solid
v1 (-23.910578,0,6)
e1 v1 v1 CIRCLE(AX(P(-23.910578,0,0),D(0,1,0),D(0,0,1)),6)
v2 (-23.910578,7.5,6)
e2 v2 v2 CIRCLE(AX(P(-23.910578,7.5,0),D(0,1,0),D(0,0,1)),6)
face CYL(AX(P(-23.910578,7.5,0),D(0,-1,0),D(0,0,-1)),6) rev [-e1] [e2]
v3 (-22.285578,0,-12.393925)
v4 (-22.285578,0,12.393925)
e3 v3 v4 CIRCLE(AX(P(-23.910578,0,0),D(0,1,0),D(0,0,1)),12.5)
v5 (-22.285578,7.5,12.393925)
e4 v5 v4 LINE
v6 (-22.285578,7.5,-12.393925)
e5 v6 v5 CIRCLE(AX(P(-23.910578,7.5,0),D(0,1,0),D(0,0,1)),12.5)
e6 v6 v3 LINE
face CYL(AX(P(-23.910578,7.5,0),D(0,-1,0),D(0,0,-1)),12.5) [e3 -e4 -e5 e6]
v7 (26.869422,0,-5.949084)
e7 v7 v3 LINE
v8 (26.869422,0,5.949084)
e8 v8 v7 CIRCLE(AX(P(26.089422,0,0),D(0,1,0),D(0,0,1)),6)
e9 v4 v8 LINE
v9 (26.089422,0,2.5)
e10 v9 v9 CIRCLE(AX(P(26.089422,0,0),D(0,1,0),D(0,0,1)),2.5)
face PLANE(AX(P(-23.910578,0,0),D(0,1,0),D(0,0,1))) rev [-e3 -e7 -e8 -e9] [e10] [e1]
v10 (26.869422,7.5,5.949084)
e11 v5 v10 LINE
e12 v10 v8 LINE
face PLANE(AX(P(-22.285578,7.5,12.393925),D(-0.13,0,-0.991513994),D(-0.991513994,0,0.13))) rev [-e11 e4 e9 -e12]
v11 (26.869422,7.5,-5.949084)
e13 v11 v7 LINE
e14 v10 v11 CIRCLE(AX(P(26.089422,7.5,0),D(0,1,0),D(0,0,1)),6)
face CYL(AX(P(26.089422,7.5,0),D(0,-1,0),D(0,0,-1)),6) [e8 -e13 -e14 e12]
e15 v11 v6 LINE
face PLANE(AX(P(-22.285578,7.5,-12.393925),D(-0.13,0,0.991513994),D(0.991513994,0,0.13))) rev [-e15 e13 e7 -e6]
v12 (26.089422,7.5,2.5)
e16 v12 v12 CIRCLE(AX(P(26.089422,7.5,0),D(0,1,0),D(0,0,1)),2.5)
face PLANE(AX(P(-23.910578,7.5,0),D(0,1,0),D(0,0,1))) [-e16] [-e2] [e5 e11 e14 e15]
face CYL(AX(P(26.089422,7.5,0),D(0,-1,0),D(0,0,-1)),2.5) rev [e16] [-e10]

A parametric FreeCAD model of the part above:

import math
import FreeCAD as App
import Part
import Sketcher
from FreeCAD import Vector
Q = App.Units.Quantity

doc = App.newDocument("Part")
body = doc.addObject("PartDesign::Body", "Body")

# Sketch on XZ plane
sketch1 = body.newObject("Sketcher::SketchObject", "Sketch")
sketch1.AttachmentSupport = (doc.getObject("XZ_Plane"), [""])
sketch1.MapMode = "FlatFace"
sketch1.addGeometry(Part.LineSegment(Vector(26.9, -5.9, 0), Vector(-22.3, -12.4, 0)), False)
sketch1.addGeometry(Part.ArcOfCircle(Part.Circle(Vector(-23.9, 0, 0), Vector(0, 0, 1), 12.5), math.radians(83), math.radians(277)), False)
sketch1.addGeometry(Part.LineSegment(Vector(-22.3, 12.4, 0), Vector(26.9, 5.9, 0)), False)
sketch1.addGeometry(Part.ArcOfCircle(Part.Circle(Vector(26.1, 0, 0), Vector(0, 0, 1), 6), math.radians(-83), math.radians(83)), False)
sketch1.addGeometry(Part.Circle(Vector(26.1, 0, 0), Vector(0, 0, 1), 2.5), False)
sketch1.addGeometry(Part.Circle(Vector(-23.9, 0, 0), Vector(0, 0, 1), 6), False)
sketch1.addConstraint(Sketcher.Constraint("Tangent", 0, 2, 1, 2))
sketch1.addConstraint(Sketcher.Constraint("Tangent", 1, 1, 2, 1))
sketch1.addConstraint(Sketcher.Constraint("Tangent", 2, 2, 3, 2))
sketch1.addConstraint(Sketcher.Constraint("Tangent", 3, 1, 0, 1))
sketch1.addConstraint(Sketcher.Constraint("Coincident", 4, 3, 3, 3))
sketch1.addConstraint(Sketcher.Constraint("Coincident", 5, 3, 1, 3))
sketch1.addConstraint(Sketcher.Constraint("Equal", 3, 5))
sketch1.addConstraint(Sketcher.Constraint("Symmetric", 0, 2, 1, 1, -1))
sketch1.addConstraint(Sketcher.Constraint("Diameter", 4, Q("5 mm")))
sketch1.addConstraint(Sketcher.Constraint("Diameter", 5, Q("12 mm")))
sketch1.addConstraint(Sketcher.Constraint("Radius", 1, Q("12.5 mm")))
sketch1.addConstraint(Sketcher.Constraint("DistanceX", 1, 3, 3, 3, Q("50 mm")))
sketch1.addConstraint(Sketcher.Constraint("DistanceX", 1, 3, -1, 1, Q("23.910578 mm")))
pad1 = body.newObject("PartDesign::Pad", "Pad")
pad1.Profile = sketch1
pad1.Length = 7.5
pad1.Reversed = True

doc.recompute()
